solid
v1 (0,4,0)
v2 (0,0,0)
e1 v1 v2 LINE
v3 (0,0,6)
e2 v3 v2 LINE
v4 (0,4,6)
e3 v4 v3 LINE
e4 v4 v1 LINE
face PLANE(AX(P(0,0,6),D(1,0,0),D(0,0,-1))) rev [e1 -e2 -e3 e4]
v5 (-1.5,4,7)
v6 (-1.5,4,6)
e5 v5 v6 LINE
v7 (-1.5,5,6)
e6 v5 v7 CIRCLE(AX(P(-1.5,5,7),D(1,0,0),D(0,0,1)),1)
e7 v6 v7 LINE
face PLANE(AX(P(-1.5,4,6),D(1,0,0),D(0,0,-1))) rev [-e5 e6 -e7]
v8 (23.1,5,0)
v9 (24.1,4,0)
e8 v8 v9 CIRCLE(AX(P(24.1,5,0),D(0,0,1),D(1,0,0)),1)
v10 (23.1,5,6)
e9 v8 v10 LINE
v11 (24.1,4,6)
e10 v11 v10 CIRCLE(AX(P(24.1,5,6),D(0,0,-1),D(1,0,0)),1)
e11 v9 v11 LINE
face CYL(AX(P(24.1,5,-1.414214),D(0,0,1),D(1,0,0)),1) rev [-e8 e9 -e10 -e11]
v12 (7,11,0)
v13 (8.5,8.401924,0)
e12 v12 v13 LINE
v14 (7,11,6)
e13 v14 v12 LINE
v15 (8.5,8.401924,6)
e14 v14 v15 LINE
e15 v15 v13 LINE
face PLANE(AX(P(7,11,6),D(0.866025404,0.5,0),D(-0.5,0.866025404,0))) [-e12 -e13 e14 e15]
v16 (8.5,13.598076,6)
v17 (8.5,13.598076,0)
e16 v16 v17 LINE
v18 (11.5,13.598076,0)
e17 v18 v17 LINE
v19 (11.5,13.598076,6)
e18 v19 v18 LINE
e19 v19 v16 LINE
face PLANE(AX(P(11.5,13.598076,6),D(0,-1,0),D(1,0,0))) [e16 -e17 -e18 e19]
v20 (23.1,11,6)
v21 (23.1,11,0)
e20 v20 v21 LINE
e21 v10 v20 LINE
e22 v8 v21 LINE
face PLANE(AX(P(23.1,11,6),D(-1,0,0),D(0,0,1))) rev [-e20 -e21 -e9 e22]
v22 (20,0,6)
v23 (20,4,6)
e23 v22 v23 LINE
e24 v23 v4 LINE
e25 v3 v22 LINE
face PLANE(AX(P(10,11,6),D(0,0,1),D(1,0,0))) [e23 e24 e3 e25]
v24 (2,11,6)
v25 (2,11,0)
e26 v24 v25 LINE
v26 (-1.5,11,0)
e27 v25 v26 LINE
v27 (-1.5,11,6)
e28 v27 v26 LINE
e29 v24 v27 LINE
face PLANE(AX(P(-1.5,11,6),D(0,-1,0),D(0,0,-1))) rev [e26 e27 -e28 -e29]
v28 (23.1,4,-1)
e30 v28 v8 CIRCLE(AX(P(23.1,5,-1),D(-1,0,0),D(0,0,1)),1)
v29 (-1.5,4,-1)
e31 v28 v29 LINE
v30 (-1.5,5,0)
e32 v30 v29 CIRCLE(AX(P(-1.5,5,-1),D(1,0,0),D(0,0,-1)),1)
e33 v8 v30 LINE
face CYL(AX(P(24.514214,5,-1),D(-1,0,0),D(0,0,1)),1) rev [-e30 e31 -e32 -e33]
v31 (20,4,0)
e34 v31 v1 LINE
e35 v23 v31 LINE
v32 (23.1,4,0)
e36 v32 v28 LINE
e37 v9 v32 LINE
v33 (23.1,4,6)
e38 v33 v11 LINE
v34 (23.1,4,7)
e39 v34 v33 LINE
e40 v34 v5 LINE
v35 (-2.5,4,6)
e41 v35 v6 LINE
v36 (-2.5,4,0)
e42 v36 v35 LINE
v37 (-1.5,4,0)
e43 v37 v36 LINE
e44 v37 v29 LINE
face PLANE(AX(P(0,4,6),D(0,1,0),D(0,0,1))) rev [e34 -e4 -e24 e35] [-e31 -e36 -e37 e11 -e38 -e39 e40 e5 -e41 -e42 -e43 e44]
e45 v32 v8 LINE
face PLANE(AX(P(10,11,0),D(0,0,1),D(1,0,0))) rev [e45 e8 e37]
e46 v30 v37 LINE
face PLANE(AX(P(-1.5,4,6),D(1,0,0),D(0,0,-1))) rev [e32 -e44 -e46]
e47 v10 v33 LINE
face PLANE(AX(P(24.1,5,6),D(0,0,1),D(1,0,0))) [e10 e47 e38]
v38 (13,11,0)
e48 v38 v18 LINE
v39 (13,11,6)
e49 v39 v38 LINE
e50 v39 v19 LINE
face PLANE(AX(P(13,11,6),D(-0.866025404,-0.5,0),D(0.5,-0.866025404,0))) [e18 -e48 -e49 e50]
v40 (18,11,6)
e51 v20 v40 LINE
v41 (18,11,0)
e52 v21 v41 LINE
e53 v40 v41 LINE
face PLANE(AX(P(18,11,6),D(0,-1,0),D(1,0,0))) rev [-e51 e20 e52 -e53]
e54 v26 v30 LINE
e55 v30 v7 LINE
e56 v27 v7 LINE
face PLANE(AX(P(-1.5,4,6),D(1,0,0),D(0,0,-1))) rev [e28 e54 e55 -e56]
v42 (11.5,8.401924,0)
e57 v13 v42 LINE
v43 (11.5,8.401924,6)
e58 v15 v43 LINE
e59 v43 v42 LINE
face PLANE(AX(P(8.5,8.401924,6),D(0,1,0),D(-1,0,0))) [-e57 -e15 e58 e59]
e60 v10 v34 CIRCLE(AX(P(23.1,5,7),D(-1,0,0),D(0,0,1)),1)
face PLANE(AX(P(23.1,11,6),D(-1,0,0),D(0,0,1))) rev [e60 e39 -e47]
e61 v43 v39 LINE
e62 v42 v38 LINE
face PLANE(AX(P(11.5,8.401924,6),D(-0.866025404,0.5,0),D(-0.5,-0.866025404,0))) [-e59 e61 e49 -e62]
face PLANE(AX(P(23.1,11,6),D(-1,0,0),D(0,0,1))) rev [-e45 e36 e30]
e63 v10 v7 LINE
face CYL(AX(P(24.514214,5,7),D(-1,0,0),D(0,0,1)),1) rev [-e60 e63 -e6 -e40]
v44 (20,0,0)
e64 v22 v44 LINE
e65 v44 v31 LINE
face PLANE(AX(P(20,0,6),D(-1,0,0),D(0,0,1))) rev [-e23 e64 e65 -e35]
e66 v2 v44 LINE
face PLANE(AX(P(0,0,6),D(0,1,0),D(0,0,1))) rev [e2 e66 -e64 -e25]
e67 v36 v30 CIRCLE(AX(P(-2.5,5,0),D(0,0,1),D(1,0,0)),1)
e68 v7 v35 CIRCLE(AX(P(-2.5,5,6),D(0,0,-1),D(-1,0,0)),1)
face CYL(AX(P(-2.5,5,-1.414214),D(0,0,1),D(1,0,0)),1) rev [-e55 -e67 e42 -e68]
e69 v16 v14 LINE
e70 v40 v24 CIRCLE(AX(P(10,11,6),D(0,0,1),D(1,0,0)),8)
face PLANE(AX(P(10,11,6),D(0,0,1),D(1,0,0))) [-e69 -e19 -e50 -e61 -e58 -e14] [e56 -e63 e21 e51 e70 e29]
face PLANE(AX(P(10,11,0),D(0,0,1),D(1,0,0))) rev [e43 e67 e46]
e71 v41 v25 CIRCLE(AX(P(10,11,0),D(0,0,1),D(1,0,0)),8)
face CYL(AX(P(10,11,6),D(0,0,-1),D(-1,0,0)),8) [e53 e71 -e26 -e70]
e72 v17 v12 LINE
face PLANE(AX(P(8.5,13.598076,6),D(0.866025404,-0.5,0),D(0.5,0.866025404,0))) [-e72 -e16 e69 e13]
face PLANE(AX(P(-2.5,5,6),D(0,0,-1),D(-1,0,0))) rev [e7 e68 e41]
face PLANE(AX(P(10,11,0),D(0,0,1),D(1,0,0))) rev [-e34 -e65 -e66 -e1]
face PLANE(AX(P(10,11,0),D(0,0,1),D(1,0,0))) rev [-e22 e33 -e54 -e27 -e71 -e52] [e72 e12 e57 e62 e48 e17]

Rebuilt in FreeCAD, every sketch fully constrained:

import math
import FreeCAD as App
import Part
import Sketcher

V = App.Vector
Q = App.Units.Quantity


def add_polygon(sketch, points):
    """Adds a closed chain of lines whose ends are joined by coincident constraints."""
    first, n = sketch.GeometryCount, len(points)
    for a, b in zip(points, points[1:] + points[:1]):
        sketch.addGeometry(Part.LineSegment(App.Vector(*a, 0), App.Vector(*b, 0)), False)
    for i in range(n):
        sketch.addConstraint(Sketcher.Constraint("Coincident", first + i, 2, first + (i + 1) % n, 1))

doc = App.newDocument("Part")
body = doc.addObject("PartDesign::Body", "Body")

sketch1 = doc.addObject("Sketcher::SketchObject", "Sketch")
body.addObject(sketch1)
sketch1.AttachmentSupport = (doc.XY_Plane, [""])
sketch1.MapMode = "FlatFace"
sketch1.addGeometry(Part.LineSegment(V(0, 0, 0), V(20, 0, 0)), False)
sketch1.addGeometry(Part.LineSegment(V(20, 0, 0), V(20, 4, 0)), False)
sketch1.addGeometry(Part.LineSegment(V(20, 4, 0), V(23.1, 4, 0)), False)
sketch1.addGeometry(Part.LineSegment(V(23.1, 4, 0), V(23.1, 11, 0)), False)
sketch1.addGeometry(Part.LineSegment(V(23.1, 11, 0), V(18, 11, 0)), False)
sketch1.addGeometry(Part.ArcOfCircle(Part.Circle(V(10, 11, 0), V(0, 0, 1), 8), math.radians(0), math.radians(180)), False)
sketch1.addGeometry(Part.LineSegment(V(2, 11, 0), V(-1.5, 11, 0)), False)
sketch1.addGeometry(Part.LineSegment(V(-1.5, 11, 0), V(-1.5, 4, 0)), False)
sketch1.addGeometry(Part.LineSegment(V(-1.5, 4, 0), V(0, 4, 0)), False)
sketch1.addGeometry(Part.LineSegment(V(0, 4, 0), V(0, 0, 0)), False)
add_polygon(sketch1, [(11.5, 13.6), (13, 11), (11.5, 8.4), (8.5, 8.4), (7, 11), (8.5, 13.6)])
sketch1.addConstraint([
    Sketcher.Constraint("Coincident", 0, 2, 1, 1),
    Sketcher.Constraint("Coincident", 1, 2, 2, 1),
    Sketcher.Constraint("Coincident", 2, 2, 3, 1),
    Sketcher.Constraint("Coincident", 3, 2, 4, 1),
    Sketcher.Constraint("Coincident", 4, 2, 5, 1),
    Sketcher.Constraint("Coincident", 5, 2, 6, 1),
    Sketcher.Constraint("Coincident", 6, 2, 7, 1),
    Sketcher.Constraint("Coincident", 7, 2, 8, 1),
    Sketcher.Constraint("Coincident", 8, 2, 9, 1),
    Sketcher.Constraint("Coincident", 9, 2, 0, 1),
    Sketcher.Constraint("Horizontal", 0),
    Sketcher.Constraint("Vertical", 1),
    Sketcher.Constraint("Horizontal", 2),
    Sketcher.Constraint("Vertical", 3),
    Sketcher.Constraint("Horizontal", 4),
    Sketcher.Constraint("Horizontal", 6),
    Sketcher.Constraint("Vertical", 7),
    Sketcher.Constraint("Horizontal", 8),
    Sketcher.Constraint("Vertical", 9),
    Sketcher.Constraint("Horizontal", 12),
    Sketcher.Constraint("Horizontal", 15),
    Sketcher.Constraint("Coincident", 9, 2, -1, 1),
    Sketcher.Constraint("Parallel", 10, 13),
    Sketcher.Constraint("Parallel", 11, 14),
    Sketcher.Constraint("Horizontal", 5, 3, 3, 2),
    Sketcher.Constraint("Horizontal", 4, 2, 5, 2),
    Sketcher.Constraint("Horizontal", 2, 2, 7, 2),
    Sketcher.Constraint("Horizontal", 6, 2, 10, 2),
    Sketcher.Constraint("Horizontal", 10, 2, 13, 2),
    Sketcher.Constraint("Vertical", 12, 2, 14, 2),
    Sketcher.Constraint("Vertical", 11, 2, 15, 2),
    Sketcher.Constraint("Radius", 5, 8.0),
    Sketcher.Constraint("DistanceX", 0, 1, 0, 2, 20.0),
    Sketcher.Constraint("DistanceX", 12, 2, 12, 1, 3.0),
    Sketcher.Constraint("DistanceY", 1, 1, 1, 2, 4.0),
    Sketcher.Constraint("DistanceY", 3, 1, 3, 2, 7.0),
    Sketcher.Constraint("Angle", 10, Q("-60 deg")),
    Sketcher.Constraint("Distance", 10, 3.0),
    Sketcher.Constraint("DistanceX", 2, 1, 2, 2, 3.1),
    Sketcher.Constraint("DistanceX", 4, 2, 4, 1, 5.1),
    Sketcher.Constraint("DistanceX", 6, 2, 6, 1, 3.5),
    Sketcher.Constraint("DistanceX", -1, 1, 10, 2, 13.0),
])
pad1 = doc.addObject("PartDesign::Pad", "Pad")
body.addObject(pad1)
pad1.Profile = sketch1
pad1.Length = 6

sketch2 = doc.addObject("Sketcher::SketchObject", "Sketch001")
body.addObject(sketch2)
sketch2.AttachmentSupport = (doc.YZ_Plane, [""])
sketch2.MapMode = "FlatFace"
sketch2.AttachmentOffset = App.Placement(V(0, 0, -1.5), App.Rotation())
sketch2.addGeometry([
    Part.LineSegment(V(5, 6, 0), V(4, 6, 0)),
    Part.LineSegment(V(4, 6, 0), V(4, 7, 0)),
    Part.ArcOfCircle(Part.Circle(V(5, 7, 0), V(0, 0, 1), 1), math.radians(-180), math.radians(-90)),
    Part.LineSegment(V(4, -1, 0), V(4, 0, 0)),
    Part.LineSegment(V(4, 0, 0), V(5, 0, 0)),
    Part.ArcOfCircle(Part.Circle(V(5, -1, 0), V(0, 0, 1), 1), math.radians(90), math.radians(180)),
], False)
sketch2.addConstraint([
    Sketcher.Constraint("Coincident", 0, 2, 1, 1),
    Sketcher.Constraint("Tangent", 1, 2, 2, 1),
    Sketcher.Constraint("Tangent", 2, 2, 0, 1),
    Sketcher.Constraint("Coincident", 3, 2, 4, 1),
    Sketcher.Constraint("Tangent", 4, 2, 5, 1),
    Sketcher.Constraint("Tangent", 5, 2, 3, 1),
    Sketcher.Constraint("Horizontal", 0),
    Sketcher.Constraint("Vertical", 1),
    Sketcher.Constraint("Vertical", 3),
    Sketcher.Constraint("Horizontal", 4),
    Sketcher.Constraint("Equal", 2, 5),
    Sketcher.Constraint("PointOnObject", 3, 2, -1),
    Sketcher.Constraint("Vertical", 2, 3, 5, 3),
    Sketcher.Constraint("Radius", 2, 1.0),
    Sketcher.Constraint("DistanceX", -1, 1, 2, 3, 5.0),
    Sketcher.Constraint("DistanceY", -1, 1, 2, 3, 7.0),
])
pad2 = doc.addObject("PartDesign::Pad", "Pad001")
body.addObject(pad2)
pad2.Profile = sketch2
pad2.Length = 24.6

sketch3 = doc.addObject("Sketcher::SketchObject", "Sketch002")
body.addObject(sketch3)
sketch3.AttachmentSupport = (doc.XY_Plane, [""])
sketch3.MapMode = "FlatFace"
sketch3.AttachmentOffset = App.Placement(V(0, 0, 6), App.Rotation())
sketch3.addGeometry([
    Part.LineSegment(V(23.1, 5, 0), V(23.1, 4, 0)),
    Part.LineSegment(V(23.1, 4, 0), V(24.1, 4, 0)),
    Part.ArcOfCircle(Part.Circle(V(24.1, 5, 0), V(0, 0, 1), 1), math.radians(-180), math.radians(-90)),
    Part.LineSegment(V(-2.5, 4, 0), V(-1.5, 4, 0)),
    Part.LineSegment(V(-1.5, 4, 0), V(-1.5, 5, 0)),
    Part.ArcOfCircle(Part.Circle(V(-2.5, 5, 0), V(0, 0, 1), 1), math.radians(-90), math.radians(0)),
], False)
sketch3.addConstraint([
    Sketcher.Constraint("Coincident", 0, 2, 1, 1),
    Sketcher.Constraint("Tangent", 1, 2, 2, 2),
    Sketcher.Constraint("Tangent", 2, 1, 0, 1),
    Sketcher.Constraint("Coincident", 3, 2, 4, 1),
    Sketcher.Constraint("Tangent", 4, 2, 5, 2),
    Sketcher.Constraint("Tangent", 5, 1, 3, 1),
    Sketcher.Constraint("Vertical", 0),
    Sketcher.Constraint("Horizontal", 1),
    Sketcher.Constraint("Horizontal", 3),
    Sketcher.Constraint("Vertical", 4),
    Sketcher.Constraint("Equal", 2, 5),
    Sketcher.Constraint("Horizontal", 2, 3, 5, 3),
    Sketcher.Constraint("Radius", 2, 1.0),
    Sketcher.Constraint("DistanceY", -1, 1, 2, 3, 5.0),
    Sketcher.Constraint("DistanceX", -1, 1, 2, 3, 24.1),
    Sketcher.Constraint("DistanceX", 5, 3, -1, 1, 2.5),
])
pad3 = doc.addObject("PartDesign::Pad", "Pad002")
body.addObject(pad3)
pad3.Profile = sketch3
pad3.Length = 6
pad3.Reversed = True

doc.recompute()
